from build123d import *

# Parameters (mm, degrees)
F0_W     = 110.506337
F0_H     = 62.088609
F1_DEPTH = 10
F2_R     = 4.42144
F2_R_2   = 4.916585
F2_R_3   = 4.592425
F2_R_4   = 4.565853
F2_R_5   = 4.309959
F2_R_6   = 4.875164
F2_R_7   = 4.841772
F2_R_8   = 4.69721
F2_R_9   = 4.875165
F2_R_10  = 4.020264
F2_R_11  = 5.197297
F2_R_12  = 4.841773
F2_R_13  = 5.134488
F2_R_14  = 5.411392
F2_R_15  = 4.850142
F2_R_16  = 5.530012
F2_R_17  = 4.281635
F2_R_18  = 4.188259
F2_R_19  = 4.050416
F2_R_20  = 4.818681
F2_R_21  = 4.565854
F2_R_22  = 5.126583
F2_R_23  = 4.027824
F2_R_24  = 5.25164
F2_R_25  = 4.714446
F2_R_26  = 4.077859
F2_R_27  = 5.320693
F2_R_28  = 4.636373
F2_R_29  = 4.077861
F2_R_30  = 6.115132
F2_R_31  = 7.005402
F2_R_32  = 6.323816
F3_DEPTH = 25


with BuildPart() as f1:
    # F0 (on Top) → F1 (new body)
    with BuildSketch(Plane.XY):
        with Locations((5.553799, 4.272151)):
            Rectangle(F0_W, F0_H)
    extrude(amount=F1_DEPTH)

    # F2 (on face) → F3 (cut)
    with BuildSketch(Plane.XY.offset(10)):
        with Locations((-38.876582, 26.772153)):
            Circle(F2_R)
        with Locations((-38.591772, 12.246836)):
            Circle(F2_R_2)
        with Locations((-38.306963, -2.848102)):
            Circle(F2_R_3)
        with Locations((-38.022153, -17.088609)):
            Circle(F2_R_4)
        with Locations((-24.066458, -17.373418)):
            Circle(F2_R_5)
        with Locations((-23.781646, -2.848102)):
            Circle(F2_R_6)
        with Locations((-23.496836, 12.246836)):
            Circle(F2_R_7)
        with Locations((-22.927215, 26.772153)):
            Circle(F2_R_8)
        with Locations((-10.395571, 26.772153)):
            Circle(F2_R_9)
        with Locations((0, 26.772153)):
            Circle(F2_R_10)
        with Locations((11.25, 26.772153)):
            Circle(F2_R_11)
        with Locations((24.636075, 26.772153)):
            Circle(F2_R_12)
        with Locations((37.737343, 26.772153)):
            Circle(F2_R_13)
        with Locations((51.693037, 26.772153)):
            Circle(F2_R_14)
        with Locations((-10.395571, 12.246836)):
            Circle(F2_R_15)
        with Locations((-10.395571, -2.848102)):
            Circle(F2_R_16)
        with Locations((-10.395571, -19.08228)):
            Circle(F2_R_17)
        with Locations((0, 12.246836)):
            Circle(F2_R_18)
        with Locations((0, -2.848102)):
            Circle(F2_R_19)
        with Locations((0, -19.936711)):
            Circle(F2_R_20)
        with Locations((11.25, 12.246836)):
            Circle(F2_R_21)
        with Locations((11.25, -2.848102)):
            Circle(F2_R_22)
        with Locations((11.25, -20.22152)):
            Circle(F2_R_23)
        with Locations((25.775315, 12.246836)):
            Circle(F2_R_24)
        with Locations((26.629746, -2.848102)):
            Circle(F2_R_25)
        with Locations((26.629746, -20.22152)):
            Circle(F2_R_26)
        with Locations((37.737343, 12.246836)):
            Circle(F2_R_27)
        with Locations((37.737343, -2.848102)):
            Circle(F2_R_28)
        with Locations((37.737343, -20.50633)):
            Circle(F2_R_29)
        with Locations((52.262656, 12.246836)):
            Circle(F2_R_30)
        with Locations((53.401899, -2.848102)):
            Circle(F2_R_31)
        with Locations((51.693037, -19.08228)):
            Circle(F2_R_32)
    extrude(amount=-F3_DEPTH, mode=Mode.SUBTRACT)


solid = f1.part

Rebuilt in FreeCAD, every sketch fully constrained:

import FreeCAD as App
import Part
import Sketcher
from FreeCAD import Vector

doc = App.newDocument("Part")
params = doc.addObject("Spreadsheet::Sheet", "Params")
for row, (alias, value) in enumerate([
    ("pad1_length", "10 mm"),
    ("pocket1_length", "25 mm"),
], start=1):
    params.set(f"A{row}", alias)
    params.set(f"B{row}", "=" + value)
    params.setAlias(f"B{row}", alias)

body = doc.addObject("PartDesign::Body", "Body")

sketch1 = body.newObject("Sketcher::SketchObject", "Sketch")
sketch1.AttachmentSupport = (doc.getObject("XY_Plane"), [""])
sketch1.MapMode = "FlatFace"
sketch1.addGeometry([
    Part.LineSegment(Vector(-49.69937, 35.316455, 0), Vector(-49.69937, -26.772154, 0)),
    Part.LineSegment(Vector(-49.69937, -26.772154, 0), Vector(60.806967, -26.772154, 0)),
    Part.LineSegment(Vector(60.806967, -26.772154, 0), Vector(60.806967, 35.316455, 0)),
    Part.LineSegment(Vector(60.806967, 35.316455, 0), Vector(-49.69937, 35.316455, 0)),
], False)
sketch1.addConstraint([
    Sketcher.Constraint("Coincident", 0, 2, 1, 1),
    Sketcher.Constraint("Coincident", 1, 2, 2, 1),
    Sketcher.Constraint("Coincident", 2, 2, 3, 1),
    Sketcher.Constraint("Coincident", 3, 2, 0, 1),
    Sketcher.Constraint("Vertical", 0),
    Sketcher.Constraint("Horizontal", 1),
    Sketcher.Constraint("Vertical", 2),
    Sketcher.Constraint("Horizontal", 3),
    Sketcher.Constraint("DistanceY", 0, 2, 0, 1, 62.088609),
    Sketcher.Constraint("DistanceX", 1, 1, 1, 2, 110.506337),
    Sketcher.Constraint("DistanceX", 0, 2, -1, 1, 49.69937),
    Sketcher.Constraint("DistanceY", 0, 2, -1, 1, 26.772154),
])
pad1 = body.newObject("PartDesign::Pad", "Pad")
pad1.Profile = sketch1
pad1.setExpression("Length", "Params.pad1_length")

sketch2 = body.newObject("Sketcher::SketchObject", "Sketch001")
sketch2.AttachmentSupport = (doc.getObject("XY_Plane"), [""])
sketch2.MapMode = "FlatFace"
sketch2.AttachmentOffset = App.Placement(Vector(0, 0, 10), App.Rotation())
sketch2.addGeometry([
    Part.Circle(Vector(-38.876582, 26.772153, 0), Vector(0, 0, 1), 4.42144),
    Part.Circle(Vector(-38.591772, 12.246836, 0), Vector(0, 0, 1), 4.916585),
    Part.Circle(Vector(-38.306963, -2.848102, 0), Vector(0, 0, 1), 4.592425),
    Part.Circle(Vector(-38.022153, -17.088609, 0), Vector(0, 0, 1), 4.565853),
    Part.Circle(Vector(-24.066458, -17.373418, 0), Vector(0, 0, 1), 4.309959),
    Part.Circle(Vector(-23.781646, -2.848102, 0), Vector(0, 0, 1), 4.875164),
    Part.Circle(Vector(-23.496836, 12.246836, 0), Vector(0, 0, 1), 4.841772),
    Part.Circle(Vector(-22.927215, 26.772153, 0), Vector(0, 0, 1), 4.69721),
    Part.Circle(Vector(-10.395571, 26.772153, 0), Vector(0, 0, 1), 4.875165),
    Part.Circle(Vector(0, 26.772153, 0), Vector(0, 0, 1), 4.020264),
    Part.Circle(Vector(11.25, 26.772153, 0), Vector(0, 0, 1), 5.197297),
    Part.Circle(Vector(24.636075, 26.772153, 0), Vector(0, 0, 1), 4.841773),
    Part.Circle(Vector(37.737343, 26.772153, 0), Vector(0, 0, 1), 5.134488),
    Part.Circle(Vector(51.693037, 26.772153, 0), Vector(0, 0, 1), 5.411392),
    Part.Circle(Vector(-10.395571, 12.246836, 0), Vector(0, 0, 1), 4.850142),
    Part.Circle(Vector(-10.395571, -2.848102, 0), Vector(0, 0, 1), 5.530012),
    Part.Circle(Vector(-10.395571, -19.08228, 0), Vector(0, 0, 1), 4.281635),
    Part.Circle(Vector(0, 12.246836, 0), Vector(0, 0, 1), 4.188259),
    Part.Circle(Vector(0, -2.848102, 0), Vector(0, 0, 1), 4.050416),
    Part.Circle(Vector(0, -19.936711, 0), Vector(0, 0, 1), 4.818681),
    Part.Circle(Vector(11.25, 12.246836, 0), Vector(0, 0, 1), 4.565854),
    Part.Circle(Vector(11.25, -2.848102, 0), Vector(0, 0, 1), 5.126583),
    Part.Circle(Vector(11.25, -20.22152, 0), Vector(0, 0, 1), 4.027824),
    Part.Circle(Vector(25.775315, 12.246836, 0), Vector(0, 0, 1), 5.25164),
    Part.Circle(Vector(26.629746, -2.848102, 0), Vector(0, 0, 1), 4.714446),
    Part.Circle(Vector(26.629746, -20.22152, 0), Vector(0, 0, 1), 4.077859),
    Part.Circle(Vector(37.737343, 12.246836, 0), Vector(0, 0, 1), 5.320693),
    Part.Circle(Vector(37.737343, -2.848102, 0), Vector(0, 0, 1), 4.636373),
    Part.Circle(Vector(37.737343, -20.50633, 0), Vector(0, 0, 1), 4.077861),
    Part.Circle(Vector(52.262656, 12.246836, 0), Vector(0, 0, 1), 6.115132),
    Part.Circle(Vector(53.401899, -2.848102, 0), Vector(0, 0, 1), 7.005402),
    Part.Circle(Vector(51.693037, -19.08228, 0), Vector(0, 0, 1), 6.323816),
], False)
sketch2.addConstraint([
    Sketcher.Constraint("Equal", 5, 8),
    Sketcher.Constraint("Equal", 6, 11),
    Sketcher.Constraint("Equal", 3, 20),
    Sketcher.Constraint("PointOnObject", 9, 3, -2),
    Sketcher.Constraint("PointOnObject", 17, 3, -2),
    Sketcher.Constraint("PointOnObject", 18, 3, -2),
    Sketcher.Constraint("PointOnObject", 19, 3, -2),
    Sketcher.Constraint("Horizontal", 2, 3, 5, 3),
    Sketcher.Constraint("Horizontal", 1, 3, 6, 3),
    Sketcher.Constraint("Horizontal", 0, 3, 7, 3),
    Sketcher.Constraint("Horizontal", 7, 3, 8, 3),
    Sketcher.Constraint("Horizontal", 8, 3, 9, 3),
    Sketcher.Constraint("Horizontal", 9, 3, 10, 3),
    Sketcher.Constraint("Horizontal", 10, 3, 11, 3),
    Sketcher.Constraint("Horizontal", 11, 3, 12, 3),
    Sketcher.Constraint("Horizontal", 12, 3, 13, 3),
    Sketcher.Constraint("Horizontal", 6, 3, 14, 3),
    Sketcher.Constraint("Horizontal", 5, 3, 15, 3),
    Sketcher.Constraint("Horizontal", 14, 3, 17, 3),
    Sketcher.Constraint("Horizontal", 15, 3, 18, 3),
    Sketcher.Constraint("Horizontal", 17, 3, 20, 3),
    Sketcher.Constraint("Horizontal", 18, 3, 21, 3),
    Sketcher.Constraint("Horizontal", 20, 3, 23, 3),
    Sketcher.Constraint("Horizontal", 21, 3, 24, 3),
    Sketcher.Constraint("Horizontal", 22, 3, 25, 3),
    Sketcher.Constraint("Horizontal", 23, 3, 26, 3),
    Sketcher.Constraint("Horizontal", 24, 3, 27, 3),
    Sketcher.Constraint("Horizontal", 26, 3, 29, 3),
    Sketcher.Constraint("Horizontal", 27, 3, 30, 3),
    Sketcher.Constraint("Horizontal", 16, 3, 31, 3),
    Sketcher.Constraint("Vertical", 8, 3, 14, 3),
    Sketcher.Constraint("Vertical", 14, 3, 15, 3),
    Sketcher.Constraint("Vertical", 15, 3, 16, 3),
    Sketcher.Constraint("Vertical", 10, 3, 20, 3),
    Sketcher.Constraint("Vertical", 20, 3, 21, 3),
    Sketcher.Constraint("Vertical", 21, 3, 22, 3),
    Sketcher.Constraint("Vertical", 24, 3, 25, 3),
    Sketcher.Constraint("Vertical", 12, 3, 26, 3),
    Sketcher.Constraint("Vertical", 26, 3, 27, 3),
    Sketcher.Constraint("Vertical", 27, 3, 28, 3),
    Sketcher.Constraint("Vertical", 13, 3, 31, 3),
    Sketcher.Constraint("Diameter", 0, 8.84288),
    Sketcher.Constraint("Diameter", 1, 9.83317),
    Sketcher.Constraint("Diameter", 2, 9.18485),
    Sketcher.Constraint("Diameter", 7, 9.39442),
    Sketcher.Constraint("Diameter", 8, 9.75033),
    Sketcher.Constraint("Diameter", 16, 8.56327),
    Sketcher.Constraint("Diameter", 17, 8.376518),
    Sketcher.Constraint("Diameter", 23, 10.50328),
    Sketcher.Constraint("Diameter", 24, 9.428892),
    Sketcher.Constraint("DistanceX", -1, 1, 10, 3, 11.25),
    Sketcher.Constraint("Diameter", 3, 9.131706),
    Sketcher.Constraint("Diameter", 4, 8.619918),
    Sketcher.Constraint("Diameter", 6, 9.683544),
    Sketcher.Constraint("Diameter", 9, 8.040528),
    Sketcher.Constraint("Diameter", 10, 10.394594),
    Sketcher.Constraint("Diameter", 12, 10.268976),
    Sketcher.Constraint("Diameter", 13, 10.822784),
    Sketcher.Constraint("Diameter", 14, 9.700284),
    Sketcher.Constraint("Diameter", 15, 11.060024),
    Sketcher.Constraint("Diameter", 18, 8.100832),
    Sketcher.Constraint("Diameter", 19, 9.637362),
    Sketcher.Constraint("Diameter", 21, 10.253166),
    Sketcher.Constraint("Diameter", 22, 8.055648),
    Sketcher.Constraint("Diameter", 25, 8.155718),
    Sketcher.Constraint("Diameter", 26, 10.641386),
    Sketcher.Constraint("Diameter", 27, 9.272746),
    Sketcher.Constraint("Diameter", 28, 8.155722),
    Sketcher.Constraint("Diameter", 29, 12.230264),
    Sketcher.Constraint("Diameter", 30, 14.010804),
    Sketcher.Constraint("Diameter", 31, 12.647632),
    Sketcher.Constraint("DistanceY", 2, 3, -1, 1, 2.848102),
    Sketcher.Constraint("DistanceX", -1, 1, 30, 3, 53.401899),
    Sketcher.Constraint("DistanceX", 1, 3, 8, 3, 28.196201),
    Sketcher.Constraint("DistanceY", 3, 3, -1, 1, 17.088609),
    Sketcher.Constraint("DistanceX", 4, 3, -1, 1, 24.066458),
    Sketcher.Constraint("DistanceY", 4, 3, -1, 1, 17.373418),
    Sketcher.Constraint("DistanceX", 8, 3, -1, 1, 10.395571),
    Sketcher.Constraint("DistanceY", 16, 3, -1, 1, 19.08228),
    Sketcher.Constraint("DistanceY", 19, 3, -1, 1, 19.936711),
    Sketcher.Constraint("DistanceY", 22, 3, -1, 1, 20.22152),
    Sketcher.Constraint("DistanceY", 28, 3, -1, 1, 20.50633),
    Sketcher.Constraint("DistanceX", 0, 3, 1, 3, 0.28481),
    Sketcher.Constraint("DistanceX", 1, 3, 2, 3, 0.284809),
    Sketcher.Constraint("DistanceX", 2, 3, 3, 3, 0.28481),
    Sketcher.Constraint("DistanceY", 4, 3, 0, 3, 44.145571),
    Sketcher.Constraint("DistanceX", 5, 3, 6, 3, 0.28481),
    Sketcher.Constraint("DistanceX", 6, 3, 7, 3, 0.569621),
    Sketcher.Constraint("DistanceX", 2, 3, 7, 3, 15.379748),
    Sketcher.Constraint("DistanceX", 7, 3, 11, 3, 47.56329),
    Sketcher.Constraint("DistanceX", 11, 3, 12, 3, 13.101268),
    Sketcher.Constraint("DistanceX", 11, 3, 13, 3, 27.056962),
    Sketcher.Constraint("DistanceX", 11, 3, 23, 3, 1.13924),
    Sketcher.Constraint("DistanceX", 23, 3, 24, 3, 0.854431),
    Sketcher.Constraint("DistanceX", 13, 3, 29, 3, 0.569619),
    Sketcher.Constraint("DistanceY", -1, 1, 1, 3, 12.246836),
])
pocket1 = body.newObject("PartDesign::Pocket", "Pocket")
pocket1.Profile = sketch2
pocket1.setExpression("Length", "Params.pocket1_length")

doc.recompute()
